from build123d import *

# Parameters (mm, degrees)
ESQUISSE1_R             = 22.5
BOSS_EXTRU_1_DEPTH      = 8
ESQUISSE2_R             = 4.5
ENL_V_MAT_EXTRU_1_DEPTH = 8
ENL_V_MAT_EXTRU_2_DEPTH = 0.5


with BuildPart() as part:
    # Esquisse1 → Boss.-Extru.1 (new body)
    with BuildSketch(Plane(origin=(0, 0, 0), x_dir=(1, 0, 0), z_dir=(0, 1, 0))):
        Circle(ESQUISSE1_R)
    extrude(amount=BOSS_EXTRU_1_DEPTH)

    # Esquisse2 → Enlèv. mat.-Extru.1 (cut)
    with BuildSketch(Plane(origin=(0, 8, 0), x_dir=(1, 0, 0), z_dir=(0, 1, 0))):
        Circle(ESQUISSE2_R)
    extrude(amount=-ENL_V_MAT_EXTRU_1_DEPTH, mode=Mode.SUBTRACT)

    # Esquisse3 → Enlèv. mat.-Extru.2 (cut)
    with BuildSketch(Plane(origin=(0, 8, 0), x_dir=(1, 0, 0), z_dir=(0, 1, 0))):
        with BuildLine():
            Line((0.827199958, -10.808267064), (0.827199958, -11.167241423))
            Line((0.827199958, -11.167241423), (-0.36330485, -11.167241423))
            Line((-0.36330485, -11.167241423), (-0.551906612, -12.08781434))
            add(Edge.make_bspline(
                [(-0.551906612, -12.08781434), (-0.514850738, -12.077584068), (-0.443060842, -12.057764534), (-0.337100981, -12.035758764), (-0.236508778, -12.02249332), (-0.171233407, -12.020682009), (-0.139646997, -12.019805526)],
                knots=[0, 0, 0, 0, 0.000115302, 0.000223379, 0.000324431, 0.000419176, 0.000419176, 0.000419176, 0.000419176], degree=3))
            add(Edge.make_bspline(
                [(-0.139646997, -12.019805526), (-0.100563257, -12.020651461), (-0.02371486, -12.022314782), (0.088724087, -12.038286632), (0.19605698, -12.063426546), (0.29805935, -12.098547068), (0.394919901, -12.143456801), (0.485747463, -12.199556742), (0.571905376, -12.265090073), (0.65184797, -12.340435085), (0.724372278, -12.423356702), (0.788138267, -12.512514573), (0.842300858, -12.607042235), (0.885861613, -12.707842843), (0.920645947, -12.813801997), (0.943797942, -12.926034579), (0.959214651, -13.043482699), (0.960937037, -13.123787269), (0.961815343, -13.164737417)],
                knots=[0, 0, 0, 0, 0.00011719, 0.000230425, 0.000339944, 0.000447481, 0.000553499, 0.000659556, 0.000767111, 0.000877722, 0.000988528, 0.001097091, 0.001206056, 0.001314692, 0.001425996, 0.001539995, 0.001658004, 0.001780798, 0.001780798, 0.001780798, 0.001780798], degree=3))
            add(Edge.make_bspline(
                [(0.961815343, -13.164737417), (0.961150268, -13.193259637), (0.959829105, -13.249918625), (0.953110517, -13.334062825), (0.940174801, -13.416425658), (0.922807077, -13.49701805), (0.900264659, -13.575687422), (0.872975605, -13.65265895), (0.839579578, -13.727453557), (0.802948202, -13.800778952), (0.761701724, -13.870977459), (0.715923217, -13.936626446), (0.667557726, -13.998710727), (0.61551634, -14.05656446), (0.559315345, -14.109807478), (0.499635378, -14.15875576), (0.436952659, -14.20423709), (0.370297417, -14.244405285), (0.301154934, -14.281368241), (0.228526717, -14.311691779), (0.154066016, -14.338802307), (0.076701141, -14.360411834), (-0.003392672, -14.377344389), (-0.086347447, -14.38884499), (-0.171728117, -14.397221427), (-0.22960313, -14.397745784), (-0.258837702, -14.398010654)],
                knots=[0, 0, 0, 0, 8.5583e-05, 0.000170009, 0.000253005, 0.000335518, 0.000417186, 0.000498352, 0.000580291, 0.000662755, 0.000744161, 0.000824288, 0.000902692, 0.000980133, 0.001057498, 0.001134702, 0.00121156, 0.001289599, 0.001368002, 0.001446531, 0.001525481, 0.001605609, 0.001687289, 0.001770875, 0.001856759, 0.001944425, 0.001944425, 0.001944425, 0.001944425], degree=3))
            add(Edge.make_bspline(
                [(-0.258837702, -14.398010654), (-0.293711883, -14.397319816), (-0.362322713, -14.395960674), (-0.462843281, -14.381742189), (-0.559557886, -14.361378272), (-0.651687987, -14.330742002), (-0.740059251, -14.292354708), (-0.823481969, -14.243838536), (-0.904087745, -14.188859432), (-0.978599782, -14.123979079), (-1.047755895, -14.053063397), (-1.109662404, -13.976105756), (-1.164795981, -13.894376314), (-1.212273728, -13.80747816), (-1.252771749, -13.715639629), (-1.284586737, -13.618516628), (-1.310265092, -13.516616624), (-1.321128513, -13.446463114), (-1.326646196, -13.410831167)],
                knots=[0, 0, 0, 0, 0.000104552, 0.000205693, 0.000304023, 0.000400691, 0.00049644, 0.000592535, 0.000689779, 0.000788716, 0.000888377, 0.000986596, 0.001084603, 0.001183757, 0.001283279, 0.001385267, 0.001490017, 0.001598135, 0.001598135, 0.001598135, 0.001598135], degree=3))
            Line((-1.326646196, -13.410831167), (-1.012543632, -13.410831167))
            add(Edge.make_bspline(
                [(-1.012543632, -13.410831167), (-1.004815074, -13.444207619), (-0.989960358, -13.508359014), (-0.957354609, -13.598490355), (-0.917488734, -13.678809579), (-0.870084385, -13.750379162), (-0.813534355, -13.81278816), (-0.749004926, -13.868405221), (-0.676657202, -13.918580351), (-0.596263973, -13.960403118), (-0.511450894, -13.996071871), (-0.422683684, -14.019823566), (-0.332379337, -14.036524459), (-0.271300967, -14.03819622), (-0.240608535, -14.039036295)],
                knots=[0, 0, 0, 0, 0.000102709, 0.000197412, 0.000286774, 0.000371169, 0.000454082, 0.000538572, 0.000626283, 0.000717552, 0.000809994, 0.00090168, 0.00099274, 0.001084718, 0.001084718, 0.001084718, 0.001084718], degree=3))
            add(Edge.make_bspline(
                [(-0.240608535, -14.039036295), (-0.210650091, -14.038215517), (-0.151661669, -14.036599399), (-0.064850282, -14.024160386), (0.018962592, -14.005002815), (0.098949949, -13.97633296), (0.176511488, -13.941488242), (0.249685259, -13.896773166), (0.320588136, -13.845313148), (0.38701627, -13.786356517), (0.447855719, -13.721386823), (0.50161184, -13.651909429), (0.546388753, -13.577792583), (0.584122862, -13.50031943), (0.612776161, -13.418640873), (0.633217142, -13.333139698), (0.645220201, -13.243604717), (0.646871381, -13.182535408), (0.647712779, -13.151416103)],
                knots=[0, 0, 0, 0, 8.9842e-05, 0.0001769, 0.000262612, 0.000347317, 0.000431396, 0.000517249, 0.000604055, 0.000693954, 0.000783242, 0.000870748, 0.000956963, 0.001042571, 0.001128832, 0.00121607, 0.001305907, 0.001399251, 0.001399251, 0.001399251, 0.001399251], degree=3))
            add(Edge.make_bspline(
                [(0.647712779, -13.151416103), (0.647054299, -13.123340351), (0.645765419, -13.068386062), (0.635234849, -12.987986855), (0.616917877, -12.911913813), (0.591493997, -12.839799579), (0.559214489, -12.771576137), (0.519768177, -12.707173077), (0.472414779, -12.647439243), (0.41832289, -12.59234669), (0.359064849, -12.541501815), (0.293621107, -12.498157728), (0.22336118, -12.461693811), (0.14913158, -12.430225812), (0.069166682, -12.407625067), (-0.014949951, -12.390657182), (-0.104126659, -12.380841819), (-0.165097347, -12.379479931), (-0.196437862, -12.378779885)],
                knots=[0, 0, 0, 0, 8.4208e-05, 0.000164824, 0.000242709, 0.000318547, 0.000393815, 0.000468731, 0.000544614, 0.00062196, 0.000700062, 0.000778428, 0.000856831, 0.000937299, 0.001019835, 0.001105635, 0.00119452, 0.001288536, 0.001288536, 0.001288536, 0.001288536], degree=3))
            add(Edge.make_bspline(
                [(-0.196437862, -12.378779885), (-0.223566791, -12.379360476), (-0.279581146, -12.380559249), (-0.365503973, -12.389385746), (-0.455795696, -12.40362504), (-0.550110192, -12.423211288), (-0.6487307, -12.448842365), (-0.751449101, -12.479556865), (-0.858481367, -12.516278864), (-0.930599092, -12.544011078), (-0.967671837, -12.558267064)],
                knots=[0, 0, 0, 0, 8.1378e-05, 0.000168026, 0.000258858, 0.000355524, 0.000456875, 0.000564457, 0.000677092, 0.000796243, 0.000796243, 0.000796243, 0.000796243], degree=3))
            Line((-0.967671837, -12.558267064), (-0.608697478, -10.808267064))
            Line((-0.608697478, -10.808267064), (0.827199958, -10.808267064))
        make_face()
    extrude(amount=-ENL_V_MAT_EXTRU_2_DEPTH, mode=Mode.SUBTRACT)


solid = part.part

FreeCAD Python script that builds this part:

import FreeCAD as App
import Part
import Sketcher

V = App.Vector
Q = App.Units.Quantity

doc = App.newDocument("Part")
body = doc.addObject("PartDesign::Body", "Body")

sketch1 = body.newObject("Sketcher::SketchObject", "Sketch")
sketch1.AttachmentSupport = (doc.getObject("XZ_Plane"), [""])
sketch1.MapMode = "FlatFace"
sketch1.addGeometry(Part.Circle(V(0, 0, 0), V(0, 0, 1), 22.5), False)
sketch1.addConstraint([
    Sketcher.Constraint("Coincident", 0, 3, -1, 1),
    Sketcher.Constraint("Diameter", 0, Q("45 mm")),
])
pad1 = body.newObject("PartDesign::Pad", "Pad")
pad1.Profile = sketch1
pad1.Length = 8
pad1.Reversed = True

sketch2 = body.newObject("Sketcher::SketchObject", "Sketch001")
sketch2.AttachmentSupport = (doc.getObject("XZ_Plane"), [""])
sketch2.MapMode = "FlatFace"
sketch2.AttachmentOffset = App.Placement(V(0, 0, -8), App.Rotation())
sketch2.addGeometry(Part.Circle(V(0, 0, 0), V(0, 0, 1), 4.5), False)
sketch2.addConstraint([
    Sketcher.Constraint("Coincident", 0, 3, -1, 1),
    Sketcher.Constraint("Diameter", 0, Q("9 mm")),
])
pocket1 = body.newObject("PartDesign::Pocket", "Pocket")
pocket1.Profile = sketch2
pocket1.Length = 8
pocket1.Reversed = True

sketch3 = body.newObject("Sketcher::SketchObject", "Sketch002")
sketch3.AttachmentSupport = (doc.getObject("XZ_Plane"), [""])
sketch3.MapMode = "FlatFace"
sketch3.AttachmentOffset = App.Placement(V(0, 0, -8), App.Rotation())
sketch3.addGeometry([
    Part.LineSegment(V(0.8272, 11.167241, 0), V(0.8272, 10.808267, 0)),
    Part.LineSegment(V(0.8272, 10.808267, 0), V(-0.608697, 10.808267, 0)),
    Part.LineSegment(V(-0.608697, 10.808267, 0), V(-0.967672, 12.558267, 0)),
    Part.BSplineCurve([V(-0.196438, 12.37878, 0), V(-0.223567, 12.37936, 0), V(-0.279581, 12.380559, 0), V(-0.365504, 12.389386, 0), V(-0.455796, 12.403625, 0), V(-0.55011, 12.423211, 0), V(-0.648731, 12.448842, 0), V(-0.751449, 12.479557, 0), V(-0.858481, 12.516279, 0), V(-0.930599, 12.544011, 0), V(-0.967672, 12.558267, 0)], [4, 1, 1, 1, 1, 1, 1, 1, 4], [0, 0.000081378, 0.000168026, 0.000258858, 0.000355524, 0.000456875, 0.000564457, 0.000677092, 0.000796243], False, 3, [1, 1, 1, 1, 1, 1, 1, 1, 1, 1, 1], False),
    Part.BSplineCurve([V(0.647713, 13.151416, 0), V(0.647054, 13.12334, 0), V(0.645765, 13.068386, 0), V(0.635235, 12.987987, 0), V(0.616918, 12.911914, 0), V(0.591494, 12.8398, 0), V(0.559214, 12.771576, 0), V(0.519768, 12.707173, 0), V(0.472415, 12.647439, 0), V(0.418323, 12.592347, 0), V(0.359065, 12.541502, 0), V(0.293621, 12.498158, 0), V(0.223361, 12.461694, 0), V(0.149132, 12.430226, 0), V(0.069167, 12.407625, 0), V(-0.01495, 12.390657, 0), V(-0.104127, 12.380842, 0), V(-0.165097, 12.37948, 0), V(-0.196438, 12.37878, 0)], [4, 1, 1, 1, 1, 1, 1, 1, 1, 1, 1, 1, 1, 1, 1, 1, 4], [0, 0.000084208, 0.000164824, 0.000242709, 0.000318547, 0.000393815, 0.000468731, 0.000544614, 0.00062196, 0.000700062, 0.000778428, 0.000856831, 0.000937299, 0.001019835, 0.001105635, 0.00119452, 0.001288536], False, 3, [1, 1, 1, 1, 1, 1, 1, 1, 1, 1, 1, 1, 1, 1, 1, 1, 1, 1, 1], False),
    Part.BSplineCurve([V(-0.240609, 14.039036, 0), V(-0.21065, 14.038216, 0), V(-0.151662, 14.036599, 0), V(-0.06485, 14.02416, 0), V(0.018963, 14.005003, 0), V(0.09895, 13.976333, 0), V(0.176511, 13.941488, 0), V(0.249685, 13.896773, 0), V(0.320588, 13.845313, 0), V(0.387016, 13.786357, 0), V(0.447856, 13.721387, 0), V(0.501612, 13.651909, 0), V(0.546389, 13.577793, 0), V(0.584123, 13.500319, 0), V(0.612776, 13.418641, 0), V(0.633217, 13.33314, 0), V(0.64522, 13.243605, 0), V(0.646871, 13.182535, 0), V(0.647713, 13.151416, 0)], [4, 1, 1, 1, 1, 1, 1, 1, 1, 1, 1, 1, 1, 1, 1, 1, 4], [0, 0.000089842, 0.0001769, 0.000262612, 0.000347317, 0.000431396, 0.000517249, 0.000604055, 0.000693954, 0.000783242, 0.000870748, 0.000956963, 0.001042571, 0.001128832, 0.00121607, 0.001305907, 0.001399251], False, 3, [1, 1, 1, 1, 1, 1, 1, 1, 1, 1, 1, 1, 1, 1, 1, 1, 1, 1, 1], False),
    Part.BSplineCurve([V(-1.012544, 13.410831, 0), V(-1.004815, 13.444208, 0), V(-0.98996, 13.508359, 0), V(-0.957355, 13.59849, 0), V(-0.917489, 13.67881, 0), V(-0.870084, 13.750379, 0), V(-0.813534, 13.812788, 0), V(-0.749005, 13.868405, 0), V(-0.676657, 13.91858, 0), V(-0.596264, 13.960403, 0), V(-0.511451, 13.996072, 0), V(-0.422684, 14.019824, 0), V(-0.332379, 14.036524, 0), V(-0.271301, 14.038196, 0), V(-0.240609, 14.039036, 0)], [4, 1, 1, 1, 1, 1, 1, 1, 1, 1, 1, 1, 4], [0, 0.000102709, 0.000197412, 0.000286774, 0.000371169, 0.000454082, 0.000538572, 0.000626283, 0.000717552, 0.000809994, 0.00090168, 0.00099274, 0.001084718], False, 3, [1, 1, 1, 1, 1, 1, 1, 1, 1, 1, 1, 1, 1, 1, 1], False),
    Part.LineSegment(V(-1.012544, 13.410831, 0), V(-1.326646, 13.410831, 0)),
    Part.BSplineCurve([V(-0.258838, 14.398011, 0), V(-0.293712, 14.39732, 0), V(-0.362323, 14.395961, 0), V(-0.462843, 14.381742, 0), V(-0.559558, 14.361378, 0), V(-0.651688, 14.330742, 0), V(-0.740059, 14.292355, 0), V(-0.823482, 14.243839, 0), V(-0.904088, 14.188859, 0), V(-0.9786, 14.123979, 0), V(-1.047756, 14.053063, 0), V(-1.109662, 13.976106, 0), V(-1.164796, 13.894376, 0), V(-1.212274, 13.807478, 0), V(-1.252772, 13.71564, 0), V(-1.284587, 13.618517, 0), V(-1.310265, 13.516617, 0), V(-1.321129, 13.446463, 0), V(-1.326646, 13.410831, 0)], [4, 1, 1, 1, 1, 1, 1, 1, 1, 1, 1, 1, 1, 1, 1, 1, 4], [0, 0.000104552, 0.000205693, 0.000304023, 0.000400691, 0.00049644, 0.000592535, 0.000689779, 0.000788716, 0.000888377, 0.000986596, 0.001084603, 0.001183757, 0.001283279, 0.001385267, 0.001490017, 0.001598135], False, 3, [1, 1, 1, 1, 1, 1, 1, 1, 1, 1, 1, 1, 1, 1, 1, 1, 1, 1, 1], False),
    Part.BSplineCurve([V(0.961815, 13.164737, 0), V(0.96115, 13.19326, 0), V(0.959829, 13.249919, 0), V(0.953111, 13.334063, 0), V(0.940175, 13.416426, 0), V(0.922807, 13.497018, 0), V(0.900265, 13.575687, 0), V(0.872976, 13.652659, 0), V(0.83958, 13.727454, 0), V(0.802948, 13.800779, 0), V(0.761702, 13.870977, 0), V(0.715923, 13.936626, 0), V(0.667558, 13.998711, 0), V(0.615516, 14.056564, 0), V(0.559315, 14.109807, 0), V(0.499635, 14.158756, 0), V(0.436953, 14.204237, 0), V(0.370297, 14.244405, 0), V(0.301155, 14.281368, 0), V(0.228527, 14.311692, 0), V(0.154066, 14.338802, 0), V(0.076701, 14.360412, 0), V(-0.003393, 14.377344, 0), V(-0.086347, 14.388845, 0), V(-0.171728, 14.397221, 0), V(-0.229603, 14.397746, 0), V(-0.258838, 14.398011, 0)], [4, 1, 1, 1, 1, 1, 1, 1, 1, 1, 1, 1, 1, 1, 1, 1, 1, 1, 1, 1, 1, 1, 1, 1, 4], [0, 0.000085583, 0.000170009, 0.000253005, 0.000335518, 0.000417186, 0.000498352, 0.000580291, 0.000662755, 0.000744161, 0.000824288, 0.000902692, 0.000980133, 0.001057498, 0.001134702, 0.00121156, 0.001289599, 0.001368002, 0.001446531, 0.001525481, 0.001605609, 0.001687289, 0.001770875, 0.001856759, 0.001944425], False, 3, [1, 1, 1, 1, 1, 1, 1, 1, 1, 1, 1, 1, 1, 1, 1, 1, 1, 1, 1, 1, 1, 1, 1, 1, 1, 1, 1], False),
    Part.BSplineCurve([V(-0.139647, 12.019806, 0), V(-0.100563, 12.020651, 0), V(-0.023715, 12.022315, 0), V(0.088724, 12.038287, 0), V(0.196057, 12.063427, 0), V(0.298059, 12.098547, 0), V(0.39492, 12.143457, 0), V(0.485747, 12.199557, 0), V(0.571905, 12.26509, 0), V(0.651848, 12.340435, 0), V(0.724372, 12.423357, 0), V(0.788138, 12.512515, 0), V(0.842301, 12.607042, 0), V(0.885862, 12.707843, 0), V(0.920646, 12.813802, 0), V(0.943798, 12.926035, 0), V(0.959215, 13.043483, 0), V(0.960937, 13.123787, 0), V(0.961815, 13.164737, 0)], [4, 1, 1, 1, 1, 1, 1, 1, 1, 1, 1, 1, 1, 1, 1, 1, 4], [0, 0.00011719, 0.000230425, 0.000339944, 0.000447481, 0.000553499, 0.000659556, 0.000767111, 0.000877722, 0.000988528, 0.001097091, 0.001206056, 0.001314692, 0.001425996, 0.001539995, 0.001658004, 0.001780798], False, 3, [1, 1, 1, 1, 1, 1, 1, 1, 1, 1, 1, 1, 1, 1, 1, 1, 1, 1, 1], False),
    Part.BSplineCurve([V(-0.551907, 12.087814, 0), V(-0.514851, 12.077584, 0), V(-0.443061, 12.057765, 0), V(-0.337101, 12.035759, 0), V(-0.236509, 12.022493, 0), V(-0.171233, 12.020682, 0), V(-0.139647, 12.019806, 0)], [4, 1, 1, 1, 4], [0, 0.000115302, 0.000223379, 0.000324431, 0.000419176], False, 3, [1, 1, 1, 1, 1, 1, 1], False),
    Part.LineSegment(V(-0.551907, 12.087814, 0), V(-0.363305, 11.167241, 0)),
    Part.LineSegment(V(-0.363305, 11.167241, 0), V(0.8272, 11.167241, 0)),
], False)
sketch3.addConstraint([
    Sketcher.Constraint("Block", 3),
    Sketcher.Constraint("Block", 4),
    Sketcher.Constraint("Block", 5),
    Sketcher.Constraint("Block", 6),
    Sketcher.Constraint("Block", 8),
    Sketcher.Constraint("Block", 9),
    Sketcher.Constraint("Block", 10),
    Sketcher.Constraint("Block", 11),
    Sketcher.Constraint("Coincident", 0, 2, 1, 1),
    Sketcher.Constraint("Coincident", 1, 2, 2, 1),
    Sketcher.Constraint("Coincident", 2, 2, 3, 2),
    Sketcher.Constraint("Coincident", 6, 1, 7, 1),
    Sketcher.Constraint("Coincident", 7, 2, 8, 2),
    Sketcher.Constraint("Coincident", 11, 1, 12, 1),
    Sketcher.Constraint("Coincident", 12, 2, 13, 1),
    Sketcher.Constraint("Coincident", 13, 2, 0, 1),
    Sketcher.Constraint("Vertical", 0),
    Sketcher.Constraint("Horizontal", 1),
    Sketcher.Constraint("Horizontal", 13),
    Sketcher.Constraint("DistanceY", 1, 2, 2, 2, Q("1.75 mm")),
    Sketcher.Constraint("DistanceX", -1, 1, 0, 2, Q("0.8272 mm")),
    Sketcher.Constraint("Distance", 2, Q("1.786439 mm")),
    Sketcher.Constraint("DistanceX", 13, 1, 13, 2, Q("1.190505 mm")),
    Sketcher.Constraint("DistanceY", 0, 2, 0, 1, Q("0.358974 mm")),
])
pocket2 = body.newObject("PartDesign::Pocket", "Pocket001")
pocket2.Profile = sketch3
pocket2.Length = 0.5
pocket2.Reversed = True

doc.recompute()
